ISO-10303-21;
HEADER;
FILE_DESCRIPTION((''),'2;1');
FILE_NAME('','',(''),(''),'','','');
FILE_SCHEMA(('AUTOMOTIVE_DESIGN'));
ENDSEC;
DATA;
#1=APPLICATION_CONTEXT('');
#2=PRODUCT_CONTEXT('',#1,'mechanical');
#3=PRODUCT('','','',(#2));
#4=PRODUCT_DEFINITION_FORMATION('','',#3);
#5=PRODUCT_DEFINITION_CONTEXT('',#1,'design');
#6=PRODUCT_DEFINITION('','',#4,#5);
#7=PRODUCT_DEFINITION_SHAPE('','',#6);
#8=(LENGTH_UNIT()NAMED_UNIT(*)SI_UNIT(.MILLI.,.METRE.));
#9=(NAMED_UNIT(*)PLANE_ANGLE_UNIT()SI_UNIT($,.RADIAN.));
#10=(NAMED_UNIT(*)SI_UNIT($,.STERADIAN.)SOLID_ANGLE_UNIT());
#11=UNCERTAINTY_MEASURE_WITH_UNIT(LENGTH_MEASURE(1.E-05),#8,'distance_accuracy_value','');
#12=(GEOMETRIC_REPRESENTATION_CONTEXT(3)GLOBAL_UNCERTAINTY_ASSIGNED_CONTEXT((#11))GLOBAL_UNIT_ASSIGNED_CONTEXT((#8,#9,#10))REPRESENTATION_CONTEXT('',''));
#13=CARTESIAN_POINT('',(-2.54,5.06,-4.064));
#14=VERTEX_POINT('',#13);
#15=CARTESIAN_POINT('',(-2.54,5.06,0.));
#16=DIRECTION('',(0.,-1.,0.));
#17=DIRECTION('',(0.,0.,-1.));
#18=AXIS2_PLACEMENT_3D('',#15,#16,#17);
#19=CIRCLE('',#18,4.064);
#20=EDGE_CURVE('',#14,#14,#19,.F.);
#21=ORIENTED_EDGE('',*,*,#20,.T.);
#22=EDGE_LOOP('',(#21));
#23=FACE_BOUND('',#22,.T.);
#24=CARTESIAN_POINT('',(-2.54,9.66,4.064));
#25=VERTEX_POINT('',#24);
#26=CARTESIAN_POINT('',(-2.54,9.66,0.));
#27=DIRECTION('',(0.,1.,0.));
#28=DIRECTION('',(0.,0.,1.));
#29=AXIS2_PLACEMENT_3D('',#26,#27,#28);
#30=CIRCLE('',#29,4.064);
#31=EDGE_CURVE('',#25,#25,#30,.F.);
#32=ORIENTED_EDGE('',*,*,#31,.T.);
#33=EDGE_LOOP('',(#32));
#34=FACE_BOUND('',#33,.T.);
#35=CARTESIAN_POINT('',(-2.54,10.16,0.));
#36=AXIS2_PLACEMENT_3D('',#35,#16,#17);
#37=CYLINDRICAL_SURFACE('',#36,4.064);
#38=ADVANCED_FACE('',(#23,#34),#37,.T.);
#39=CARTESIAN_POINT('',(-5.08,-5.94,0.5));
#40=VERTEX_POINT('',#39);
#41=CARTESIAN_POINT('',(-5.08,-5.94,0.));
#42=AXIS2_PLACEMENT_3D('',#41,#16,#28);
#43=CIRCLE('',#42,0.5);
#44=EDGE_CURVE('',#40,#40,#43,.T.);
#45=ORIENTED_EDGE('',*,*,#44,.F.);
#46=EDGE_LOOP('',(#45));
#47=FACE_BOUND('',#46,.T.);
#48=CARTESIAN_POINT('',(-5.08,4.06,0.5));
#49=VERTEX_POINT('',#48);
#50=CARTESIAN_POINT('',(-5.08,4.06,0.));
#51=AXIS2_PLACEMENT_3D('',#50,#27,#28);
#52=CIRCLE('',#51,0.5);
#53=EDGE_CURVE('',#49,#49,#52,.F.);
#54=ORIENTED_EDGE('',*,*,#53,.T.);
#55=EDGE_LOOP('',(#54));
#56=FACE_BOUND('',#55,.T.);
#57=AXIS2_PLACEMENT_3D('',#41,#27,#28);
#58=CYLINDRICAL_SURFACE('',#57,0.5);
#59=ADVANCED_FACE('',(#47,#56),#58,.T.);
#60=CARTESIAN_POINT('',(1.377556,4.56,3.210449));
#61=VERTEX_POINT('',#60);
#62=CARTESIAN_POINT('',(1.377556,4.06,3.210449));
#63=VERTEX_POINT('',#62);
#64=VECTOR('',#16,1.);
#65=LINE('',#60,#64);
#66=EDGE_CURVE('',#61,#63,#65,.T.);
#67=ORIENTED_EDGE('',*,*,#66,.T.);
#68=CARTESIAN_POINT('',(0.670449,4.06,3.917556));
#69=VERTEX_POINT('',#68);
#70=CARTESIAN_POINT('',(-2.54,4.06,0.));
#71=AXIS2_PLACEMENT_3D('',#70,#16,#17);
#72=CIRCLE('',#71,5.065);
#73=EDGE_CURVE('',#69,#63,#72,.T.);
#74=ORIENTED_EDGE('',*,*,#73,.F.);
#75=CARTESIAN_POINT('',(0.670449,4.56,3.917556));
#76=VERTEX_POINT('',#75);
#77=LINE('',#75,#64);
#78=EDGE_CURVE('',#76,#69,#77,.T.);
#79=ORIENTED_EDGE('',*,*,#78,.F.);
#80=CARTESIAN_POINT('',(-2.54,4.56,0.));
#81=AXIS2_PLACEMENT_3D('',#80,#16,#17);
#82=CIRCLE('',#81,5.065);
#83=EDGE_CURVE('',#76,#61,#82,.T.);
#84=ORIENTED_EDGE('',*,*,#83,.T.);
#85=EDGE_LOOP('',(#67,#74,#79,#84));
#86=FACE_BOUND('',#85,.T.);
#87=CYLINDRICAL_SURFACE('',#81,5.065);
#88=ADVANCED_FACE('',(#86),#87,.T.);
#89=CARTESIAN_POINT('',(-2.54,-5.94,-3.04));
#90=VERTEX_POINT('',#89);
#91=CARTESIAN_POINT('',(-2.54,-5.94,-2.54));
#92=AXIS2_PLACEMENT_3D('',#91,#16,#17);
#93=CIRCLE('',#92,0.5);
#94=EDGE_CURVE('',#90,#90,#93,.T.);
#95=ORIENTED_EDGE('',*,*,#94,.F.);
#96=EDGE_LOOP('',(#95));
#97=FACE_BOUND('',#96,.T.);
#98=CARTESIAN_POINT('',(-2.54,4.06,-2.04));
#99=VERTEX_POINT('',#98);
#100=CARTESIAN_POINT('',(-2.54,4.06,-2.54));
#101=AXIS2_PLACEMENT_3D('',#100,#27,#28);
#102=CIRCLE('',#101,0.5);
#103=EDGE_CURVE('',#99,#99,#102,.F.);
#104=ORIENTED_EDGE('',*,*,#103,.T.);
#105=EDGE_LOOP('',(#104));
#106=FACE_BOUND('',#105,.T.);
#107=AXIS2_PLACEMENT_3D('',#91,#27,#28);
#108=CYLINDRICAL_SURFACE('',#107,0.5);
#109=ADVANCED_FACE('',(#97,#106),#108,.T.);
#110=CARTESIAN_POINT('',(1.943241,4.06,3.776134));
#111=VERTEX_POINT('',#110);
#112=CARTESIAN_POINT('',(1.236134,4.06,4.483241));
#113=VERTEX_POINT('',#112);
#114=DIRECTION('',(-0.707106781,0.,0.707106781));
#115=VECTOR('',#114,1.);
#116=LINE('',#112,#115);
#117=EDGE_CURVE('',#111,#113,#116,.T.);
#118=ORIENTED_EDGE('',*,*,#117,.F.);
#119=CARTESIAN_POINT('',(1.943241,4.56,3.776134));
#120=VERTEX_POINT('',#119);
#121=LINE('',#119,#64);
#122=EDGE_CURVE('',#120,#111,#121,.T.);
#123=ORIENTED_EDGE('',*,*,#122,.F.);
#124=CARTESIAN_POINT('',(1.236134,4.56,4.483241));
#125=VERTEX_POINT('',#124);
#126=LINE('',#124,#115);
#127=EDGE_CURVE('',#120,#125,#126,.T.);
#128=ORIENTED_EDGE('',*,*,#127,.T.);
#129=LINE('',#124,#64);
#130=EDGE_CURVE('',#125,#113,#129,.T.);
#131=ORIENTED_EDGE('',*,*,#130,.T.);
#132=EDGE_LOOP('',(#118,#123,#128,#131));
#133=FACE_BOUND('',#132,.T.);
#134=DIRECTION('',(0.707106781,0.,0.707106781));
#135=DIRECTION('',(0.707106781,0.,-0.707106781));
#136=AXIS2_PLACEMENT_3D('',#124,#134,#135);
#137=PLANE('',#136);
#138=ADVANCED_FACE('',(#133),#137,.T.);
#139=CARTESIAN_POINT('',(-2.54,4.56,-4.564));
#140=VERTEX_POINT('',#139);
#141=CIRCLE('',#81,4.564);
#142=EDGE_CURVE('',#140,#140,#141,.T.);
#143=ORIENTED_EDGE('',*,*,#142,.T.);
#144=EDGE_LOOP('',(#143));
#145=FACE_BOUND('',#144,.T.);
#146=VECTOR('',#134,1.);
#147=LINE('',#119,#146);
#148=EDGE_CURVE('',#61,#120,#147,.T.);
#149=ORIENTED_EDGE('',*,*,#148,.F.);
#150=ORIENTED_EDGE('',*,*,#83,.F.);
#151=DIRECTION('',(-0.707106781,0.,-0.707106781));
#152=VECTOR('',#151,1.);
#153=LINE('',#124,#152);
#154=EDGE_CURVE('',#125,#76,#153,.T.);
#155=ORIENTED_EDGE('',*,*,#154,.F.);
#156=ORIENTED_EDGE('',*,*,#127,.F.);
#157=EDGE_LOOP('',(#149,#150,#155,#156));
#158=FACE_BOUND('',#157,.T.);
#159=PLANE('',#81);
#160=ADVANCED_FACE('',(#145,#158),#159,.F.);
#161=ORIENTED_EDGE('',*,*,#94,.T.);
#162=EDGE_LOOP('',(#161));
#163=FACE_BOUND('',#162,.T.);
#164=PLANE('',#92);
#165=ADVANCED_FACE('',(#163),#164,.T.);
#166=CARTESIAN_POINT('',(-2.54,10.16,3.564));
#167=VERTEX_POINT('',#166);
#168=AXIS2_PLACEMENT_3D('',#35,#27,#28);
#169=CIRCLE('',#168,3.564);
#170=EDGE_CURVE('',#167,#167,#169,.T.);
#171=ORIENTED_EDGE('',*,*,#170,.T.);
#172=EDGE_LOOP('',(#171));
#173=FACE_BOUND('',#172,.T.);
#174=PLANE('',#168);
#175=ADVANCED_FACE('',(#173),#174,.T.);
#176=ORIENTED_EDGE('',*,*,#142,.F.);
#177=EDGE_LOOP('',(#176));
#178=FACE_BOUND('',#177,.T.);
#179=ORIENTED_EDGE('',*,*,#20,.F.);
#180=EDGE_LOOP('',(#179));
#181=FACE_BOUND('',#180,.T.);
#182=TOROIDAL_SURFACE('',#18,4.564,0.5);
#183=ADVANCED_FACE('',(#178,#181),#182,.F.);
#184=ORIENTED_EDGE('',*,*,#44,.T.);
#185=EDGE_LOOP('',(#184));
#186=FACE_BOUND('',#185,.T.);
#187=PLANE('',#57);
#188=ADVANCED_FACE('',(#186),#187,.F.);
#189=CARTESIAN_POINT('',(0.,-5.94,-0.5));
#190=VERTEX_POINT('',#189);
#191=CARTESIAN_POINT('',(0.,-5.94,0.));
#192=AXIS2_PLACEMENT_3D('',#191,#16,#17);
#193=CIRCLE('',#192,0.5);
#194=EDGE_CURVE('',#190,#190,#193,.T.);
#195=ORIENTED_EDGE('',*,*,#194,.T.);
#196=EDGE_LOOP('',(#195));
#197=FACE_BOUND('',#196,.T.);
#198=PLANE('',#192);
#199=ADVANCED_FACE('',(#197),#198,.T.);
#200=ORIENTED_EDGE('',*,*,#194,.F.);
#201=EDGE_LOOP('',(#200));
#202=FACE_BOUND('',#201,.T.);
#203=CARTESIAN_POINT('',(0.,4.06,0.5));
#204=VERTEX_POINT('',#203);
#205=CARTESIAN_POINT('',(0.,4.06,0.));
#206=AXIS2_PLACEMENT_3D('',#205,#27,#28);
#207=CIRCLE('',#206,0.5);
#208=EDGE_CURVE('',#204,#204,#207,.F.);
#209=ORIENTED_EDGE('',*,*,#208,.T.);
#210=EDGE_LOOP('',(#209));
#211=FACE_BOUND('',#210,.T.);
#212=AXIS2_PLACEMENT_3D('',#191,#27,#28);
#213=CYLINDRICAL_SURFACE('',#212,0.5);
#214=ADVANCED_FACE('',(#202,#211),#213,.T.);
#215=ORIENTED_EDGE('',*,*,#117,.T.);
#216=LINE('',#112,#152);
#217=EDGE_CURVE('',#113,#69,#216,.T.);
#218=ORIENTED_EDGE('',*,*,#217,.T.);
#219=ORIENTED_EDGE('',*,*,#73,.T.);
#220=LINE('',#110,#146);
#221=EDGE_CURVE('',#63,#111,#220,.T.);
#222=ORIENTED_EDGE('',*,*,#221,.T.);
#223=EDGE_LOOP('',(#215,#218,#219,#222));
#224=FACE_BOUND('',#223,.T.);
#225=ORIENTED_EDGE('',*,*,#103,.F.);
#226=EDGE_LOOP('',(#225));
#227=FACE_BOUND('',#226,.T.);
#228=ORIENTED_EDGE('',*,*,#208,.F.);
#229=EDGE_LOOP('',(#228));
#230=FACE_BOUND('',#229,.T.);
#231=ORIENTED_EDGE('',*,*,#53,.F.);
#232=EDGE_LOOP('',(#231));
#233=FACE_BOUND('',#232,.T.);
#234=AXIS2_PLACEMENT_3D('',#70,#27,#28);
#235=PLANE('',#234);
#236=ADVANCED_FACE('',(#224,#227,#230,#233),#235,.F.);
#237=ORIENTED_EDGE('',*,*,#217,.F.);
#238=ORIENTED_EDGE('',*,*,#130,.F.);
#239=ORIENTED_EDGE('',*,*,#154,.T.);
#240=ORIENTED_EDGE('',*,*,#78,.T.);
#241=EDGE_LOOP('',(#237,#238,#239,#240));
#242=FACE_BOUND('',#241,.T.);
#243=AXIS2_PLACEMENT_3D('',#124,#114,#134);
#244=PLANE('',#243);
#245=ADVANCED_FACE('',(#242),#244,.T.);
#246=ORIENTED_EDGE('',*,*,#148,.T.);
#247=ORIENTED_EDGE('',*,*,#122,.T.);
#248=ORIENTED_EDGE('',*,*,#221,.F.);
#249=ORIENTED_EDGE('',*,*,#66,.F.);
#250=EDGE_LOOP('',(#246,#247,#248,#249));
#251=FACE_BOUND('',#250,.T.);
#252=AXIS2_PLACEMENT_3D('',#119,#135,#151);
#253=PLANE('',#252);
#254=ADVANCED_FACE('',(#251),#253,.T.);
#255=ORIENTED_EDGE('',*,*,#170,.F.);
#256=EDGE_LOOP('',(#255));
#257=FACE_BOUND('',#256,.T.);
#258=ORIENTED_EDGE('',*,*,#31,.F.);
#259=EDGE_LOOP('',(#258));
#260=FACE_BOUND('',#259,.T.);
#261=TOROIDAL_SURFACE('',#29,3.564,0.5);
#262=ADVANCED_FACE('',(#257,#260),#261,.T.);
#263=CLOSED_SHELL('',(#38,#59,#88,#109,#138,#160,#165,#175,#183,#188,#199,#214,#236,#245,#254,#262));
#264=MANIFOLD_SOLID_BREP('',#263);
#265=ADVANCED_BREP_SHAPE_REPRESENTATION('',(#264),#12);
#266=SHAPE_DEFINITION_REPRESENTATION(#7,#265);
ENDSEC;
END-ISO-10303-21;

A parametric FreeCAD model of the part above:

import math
import FreeCAD as App
import Part
import Sketcher
from FreeCAD import Vector
Q = App.Units.Quantity


def edges_at(feature, points):
    """Names of the edges that pass closest to the given points."""
    edges = feature.Shape.Edges
    near = lambda p: min(range(len(edges)), key=lambda i: edges[i].distToShape(Part.Vertex(*p))[0])
    return sorted({f"Edge{near(p) + 1}" for p in points})

doc = App.newDocument("Part")
body = doc.addObject("PartDesign::Body", "Body")

# Sketch on XZ plane
sketch1 = body.newObject("Sketcher::SketchObject", "Sketch")
sketch1.AttachmentSupport = (doc.getObject("XZ_Plane"), [""])
sketch1.MapMode = "FlatFace"
sketch1.AttachmentOffset = App.Placement(Vector(0, 0, -4.06), App.Rotation())
sketch1.addGeometry(Part.Circle(Vector(-2.5, 0, 0), Vector(0, 0, 1), 4.1), False)
sketch1.addConstraint([
    Sketcher.Constraint("PointOnObject", 0, 3, -1),
    Sketcher.Constraint("Diameter", 0, 8.128),
    Sketcher.Constraint("DistanceX", 0, 3, -1, 1, 2.54),
])
pad1 = body.newObject("PartDesign::Pad", "Pad")
pad1.Profile = sketch1
pad1.Length = 6.1
pad1.Reversed = True

# Sketch on XZ plane
sketch2 = body.newObject("Sketcher::SketchObject", "Sketch001")
sketch2.AttachmentSupport = (doc.getObject("XZ_Plane"), [""])
sketch2.MapMode = "FlatFace"
sketch2.AttachmentOffset = App.Placement(Vector(0, 0, -4.06), App.Rotation())
sketch2.addGeometry([
    Part.Circle(Vector(0, 0, 0), Vector(0, 0, 1), 0.5),
    Part.Circle(Vector(-2.5, -2.5, 0), Vector(0, 0, 1), 0.5),
    Part.Circle(Vector(-5.1, 0, 0), Vector(0, 0, 1), 0.5),
], False)
sketch2.addConstraint([
    Sketcher.Constraint("Coincident", 0, 3, -1, 1),
    Sketcher.Constraint("Equal", 0, 1),
    Sketcher.Constraint("Equal", 1, 2),
    Sketcher.Constraint("PointOnObject", 2, 3, -1),
    Sketcher.Constraint("Diameter", 0, 1.0),
    Sketcher.Constraint("DistanceX", 1, 3, -1, 1, 2.54),
    Sketcher.Constraint("DistanceY", 1, 3, -1, 1, 2.54),
    Sketcher.Constraint("DistanceX", 2, 3, -1, 1, 5.08),
])
pad2 = body.newObject("PartDesign::Pad", "Pad001")
pad2.Profile = sketch2
pad2.Length = 10

# Sketch on XZ plane
sketch3 = body.newObject("Sketcher::SketchObject", "Sketch002")
sketch3.AttachmentSupport = (doc.getObject("XZ_Plane"), [""])
sketch3.MapMode = "FlatFace"
sketch3.AttachmentOffset = App.Placement(Vector(0, 0, -4.06), App.Rotation())
sketch3.addGeometry([
    Part.LineSegment(Vector(1.9, 3.8, 0), Vector(1.2, 4.5, 0)),
    Part.LineSegment(Vector(1.2, 4.5, 0), Vector(0.7, 3.9, 0)),
    Part.ArcOfCircle(Part.Circle(Vector(-2.5, 0, 0), Vector(0, 0, 1), 5.1), math.radians(51), math.radians(399)),
    Part.LineSegment(Vector(1.4, 3.2, 0), Vector(1.9, 3.8, 0)),
], False)
sketch3.addConstraint([
    Sketcher.Constraint("Coincident", 0, 2, 1, 1),
    Sketcher.Constraint("Coincident", 1, 2, 2, 1),
    Sketcher.Constraint("Coincident", 2, 2, 3, 1),
    Sketcher.Constraint("Coincident", 3, 2, 0, 1),
    Sketcher.Constraint("PointOnObject", 2, 3, -1),
    Sketcher.Constraint("Perpendicular", 0, 1),
    Sketcher.Constraint("Parallel", 1, 3),
    Sketcher.Constraint("Equal", 1, 3),
    Sketcher.Constraint("Angle", 0, Q("135 deg")),
    Sketcher.Constraint("Distance", 0, 1.0),
    Sketcher.Constraint("Radius", 2, 5.065),
    Sketcher.Constraint("Distance", 1, 0.8),
    Sketcher.Constraint("DistanceX", 2, 3, -1, 1, 2.54),
])
pad3 = body.newObject("PartDesign::Pad", "Pad002")
pad3.Profile = sketch3
pad3.Length = 0.5
pad3.Reversed = True
doc.recompute()

fillet = body.newObject("PartDesign::Fillet", "Fillet")
fillet.Base = (pad3, edges_at(pad3, [(-6.604, 4.56, 0), (-6.604, 10.16, 0)]))
fillet.Radius = 0.5

doc.recompute()
